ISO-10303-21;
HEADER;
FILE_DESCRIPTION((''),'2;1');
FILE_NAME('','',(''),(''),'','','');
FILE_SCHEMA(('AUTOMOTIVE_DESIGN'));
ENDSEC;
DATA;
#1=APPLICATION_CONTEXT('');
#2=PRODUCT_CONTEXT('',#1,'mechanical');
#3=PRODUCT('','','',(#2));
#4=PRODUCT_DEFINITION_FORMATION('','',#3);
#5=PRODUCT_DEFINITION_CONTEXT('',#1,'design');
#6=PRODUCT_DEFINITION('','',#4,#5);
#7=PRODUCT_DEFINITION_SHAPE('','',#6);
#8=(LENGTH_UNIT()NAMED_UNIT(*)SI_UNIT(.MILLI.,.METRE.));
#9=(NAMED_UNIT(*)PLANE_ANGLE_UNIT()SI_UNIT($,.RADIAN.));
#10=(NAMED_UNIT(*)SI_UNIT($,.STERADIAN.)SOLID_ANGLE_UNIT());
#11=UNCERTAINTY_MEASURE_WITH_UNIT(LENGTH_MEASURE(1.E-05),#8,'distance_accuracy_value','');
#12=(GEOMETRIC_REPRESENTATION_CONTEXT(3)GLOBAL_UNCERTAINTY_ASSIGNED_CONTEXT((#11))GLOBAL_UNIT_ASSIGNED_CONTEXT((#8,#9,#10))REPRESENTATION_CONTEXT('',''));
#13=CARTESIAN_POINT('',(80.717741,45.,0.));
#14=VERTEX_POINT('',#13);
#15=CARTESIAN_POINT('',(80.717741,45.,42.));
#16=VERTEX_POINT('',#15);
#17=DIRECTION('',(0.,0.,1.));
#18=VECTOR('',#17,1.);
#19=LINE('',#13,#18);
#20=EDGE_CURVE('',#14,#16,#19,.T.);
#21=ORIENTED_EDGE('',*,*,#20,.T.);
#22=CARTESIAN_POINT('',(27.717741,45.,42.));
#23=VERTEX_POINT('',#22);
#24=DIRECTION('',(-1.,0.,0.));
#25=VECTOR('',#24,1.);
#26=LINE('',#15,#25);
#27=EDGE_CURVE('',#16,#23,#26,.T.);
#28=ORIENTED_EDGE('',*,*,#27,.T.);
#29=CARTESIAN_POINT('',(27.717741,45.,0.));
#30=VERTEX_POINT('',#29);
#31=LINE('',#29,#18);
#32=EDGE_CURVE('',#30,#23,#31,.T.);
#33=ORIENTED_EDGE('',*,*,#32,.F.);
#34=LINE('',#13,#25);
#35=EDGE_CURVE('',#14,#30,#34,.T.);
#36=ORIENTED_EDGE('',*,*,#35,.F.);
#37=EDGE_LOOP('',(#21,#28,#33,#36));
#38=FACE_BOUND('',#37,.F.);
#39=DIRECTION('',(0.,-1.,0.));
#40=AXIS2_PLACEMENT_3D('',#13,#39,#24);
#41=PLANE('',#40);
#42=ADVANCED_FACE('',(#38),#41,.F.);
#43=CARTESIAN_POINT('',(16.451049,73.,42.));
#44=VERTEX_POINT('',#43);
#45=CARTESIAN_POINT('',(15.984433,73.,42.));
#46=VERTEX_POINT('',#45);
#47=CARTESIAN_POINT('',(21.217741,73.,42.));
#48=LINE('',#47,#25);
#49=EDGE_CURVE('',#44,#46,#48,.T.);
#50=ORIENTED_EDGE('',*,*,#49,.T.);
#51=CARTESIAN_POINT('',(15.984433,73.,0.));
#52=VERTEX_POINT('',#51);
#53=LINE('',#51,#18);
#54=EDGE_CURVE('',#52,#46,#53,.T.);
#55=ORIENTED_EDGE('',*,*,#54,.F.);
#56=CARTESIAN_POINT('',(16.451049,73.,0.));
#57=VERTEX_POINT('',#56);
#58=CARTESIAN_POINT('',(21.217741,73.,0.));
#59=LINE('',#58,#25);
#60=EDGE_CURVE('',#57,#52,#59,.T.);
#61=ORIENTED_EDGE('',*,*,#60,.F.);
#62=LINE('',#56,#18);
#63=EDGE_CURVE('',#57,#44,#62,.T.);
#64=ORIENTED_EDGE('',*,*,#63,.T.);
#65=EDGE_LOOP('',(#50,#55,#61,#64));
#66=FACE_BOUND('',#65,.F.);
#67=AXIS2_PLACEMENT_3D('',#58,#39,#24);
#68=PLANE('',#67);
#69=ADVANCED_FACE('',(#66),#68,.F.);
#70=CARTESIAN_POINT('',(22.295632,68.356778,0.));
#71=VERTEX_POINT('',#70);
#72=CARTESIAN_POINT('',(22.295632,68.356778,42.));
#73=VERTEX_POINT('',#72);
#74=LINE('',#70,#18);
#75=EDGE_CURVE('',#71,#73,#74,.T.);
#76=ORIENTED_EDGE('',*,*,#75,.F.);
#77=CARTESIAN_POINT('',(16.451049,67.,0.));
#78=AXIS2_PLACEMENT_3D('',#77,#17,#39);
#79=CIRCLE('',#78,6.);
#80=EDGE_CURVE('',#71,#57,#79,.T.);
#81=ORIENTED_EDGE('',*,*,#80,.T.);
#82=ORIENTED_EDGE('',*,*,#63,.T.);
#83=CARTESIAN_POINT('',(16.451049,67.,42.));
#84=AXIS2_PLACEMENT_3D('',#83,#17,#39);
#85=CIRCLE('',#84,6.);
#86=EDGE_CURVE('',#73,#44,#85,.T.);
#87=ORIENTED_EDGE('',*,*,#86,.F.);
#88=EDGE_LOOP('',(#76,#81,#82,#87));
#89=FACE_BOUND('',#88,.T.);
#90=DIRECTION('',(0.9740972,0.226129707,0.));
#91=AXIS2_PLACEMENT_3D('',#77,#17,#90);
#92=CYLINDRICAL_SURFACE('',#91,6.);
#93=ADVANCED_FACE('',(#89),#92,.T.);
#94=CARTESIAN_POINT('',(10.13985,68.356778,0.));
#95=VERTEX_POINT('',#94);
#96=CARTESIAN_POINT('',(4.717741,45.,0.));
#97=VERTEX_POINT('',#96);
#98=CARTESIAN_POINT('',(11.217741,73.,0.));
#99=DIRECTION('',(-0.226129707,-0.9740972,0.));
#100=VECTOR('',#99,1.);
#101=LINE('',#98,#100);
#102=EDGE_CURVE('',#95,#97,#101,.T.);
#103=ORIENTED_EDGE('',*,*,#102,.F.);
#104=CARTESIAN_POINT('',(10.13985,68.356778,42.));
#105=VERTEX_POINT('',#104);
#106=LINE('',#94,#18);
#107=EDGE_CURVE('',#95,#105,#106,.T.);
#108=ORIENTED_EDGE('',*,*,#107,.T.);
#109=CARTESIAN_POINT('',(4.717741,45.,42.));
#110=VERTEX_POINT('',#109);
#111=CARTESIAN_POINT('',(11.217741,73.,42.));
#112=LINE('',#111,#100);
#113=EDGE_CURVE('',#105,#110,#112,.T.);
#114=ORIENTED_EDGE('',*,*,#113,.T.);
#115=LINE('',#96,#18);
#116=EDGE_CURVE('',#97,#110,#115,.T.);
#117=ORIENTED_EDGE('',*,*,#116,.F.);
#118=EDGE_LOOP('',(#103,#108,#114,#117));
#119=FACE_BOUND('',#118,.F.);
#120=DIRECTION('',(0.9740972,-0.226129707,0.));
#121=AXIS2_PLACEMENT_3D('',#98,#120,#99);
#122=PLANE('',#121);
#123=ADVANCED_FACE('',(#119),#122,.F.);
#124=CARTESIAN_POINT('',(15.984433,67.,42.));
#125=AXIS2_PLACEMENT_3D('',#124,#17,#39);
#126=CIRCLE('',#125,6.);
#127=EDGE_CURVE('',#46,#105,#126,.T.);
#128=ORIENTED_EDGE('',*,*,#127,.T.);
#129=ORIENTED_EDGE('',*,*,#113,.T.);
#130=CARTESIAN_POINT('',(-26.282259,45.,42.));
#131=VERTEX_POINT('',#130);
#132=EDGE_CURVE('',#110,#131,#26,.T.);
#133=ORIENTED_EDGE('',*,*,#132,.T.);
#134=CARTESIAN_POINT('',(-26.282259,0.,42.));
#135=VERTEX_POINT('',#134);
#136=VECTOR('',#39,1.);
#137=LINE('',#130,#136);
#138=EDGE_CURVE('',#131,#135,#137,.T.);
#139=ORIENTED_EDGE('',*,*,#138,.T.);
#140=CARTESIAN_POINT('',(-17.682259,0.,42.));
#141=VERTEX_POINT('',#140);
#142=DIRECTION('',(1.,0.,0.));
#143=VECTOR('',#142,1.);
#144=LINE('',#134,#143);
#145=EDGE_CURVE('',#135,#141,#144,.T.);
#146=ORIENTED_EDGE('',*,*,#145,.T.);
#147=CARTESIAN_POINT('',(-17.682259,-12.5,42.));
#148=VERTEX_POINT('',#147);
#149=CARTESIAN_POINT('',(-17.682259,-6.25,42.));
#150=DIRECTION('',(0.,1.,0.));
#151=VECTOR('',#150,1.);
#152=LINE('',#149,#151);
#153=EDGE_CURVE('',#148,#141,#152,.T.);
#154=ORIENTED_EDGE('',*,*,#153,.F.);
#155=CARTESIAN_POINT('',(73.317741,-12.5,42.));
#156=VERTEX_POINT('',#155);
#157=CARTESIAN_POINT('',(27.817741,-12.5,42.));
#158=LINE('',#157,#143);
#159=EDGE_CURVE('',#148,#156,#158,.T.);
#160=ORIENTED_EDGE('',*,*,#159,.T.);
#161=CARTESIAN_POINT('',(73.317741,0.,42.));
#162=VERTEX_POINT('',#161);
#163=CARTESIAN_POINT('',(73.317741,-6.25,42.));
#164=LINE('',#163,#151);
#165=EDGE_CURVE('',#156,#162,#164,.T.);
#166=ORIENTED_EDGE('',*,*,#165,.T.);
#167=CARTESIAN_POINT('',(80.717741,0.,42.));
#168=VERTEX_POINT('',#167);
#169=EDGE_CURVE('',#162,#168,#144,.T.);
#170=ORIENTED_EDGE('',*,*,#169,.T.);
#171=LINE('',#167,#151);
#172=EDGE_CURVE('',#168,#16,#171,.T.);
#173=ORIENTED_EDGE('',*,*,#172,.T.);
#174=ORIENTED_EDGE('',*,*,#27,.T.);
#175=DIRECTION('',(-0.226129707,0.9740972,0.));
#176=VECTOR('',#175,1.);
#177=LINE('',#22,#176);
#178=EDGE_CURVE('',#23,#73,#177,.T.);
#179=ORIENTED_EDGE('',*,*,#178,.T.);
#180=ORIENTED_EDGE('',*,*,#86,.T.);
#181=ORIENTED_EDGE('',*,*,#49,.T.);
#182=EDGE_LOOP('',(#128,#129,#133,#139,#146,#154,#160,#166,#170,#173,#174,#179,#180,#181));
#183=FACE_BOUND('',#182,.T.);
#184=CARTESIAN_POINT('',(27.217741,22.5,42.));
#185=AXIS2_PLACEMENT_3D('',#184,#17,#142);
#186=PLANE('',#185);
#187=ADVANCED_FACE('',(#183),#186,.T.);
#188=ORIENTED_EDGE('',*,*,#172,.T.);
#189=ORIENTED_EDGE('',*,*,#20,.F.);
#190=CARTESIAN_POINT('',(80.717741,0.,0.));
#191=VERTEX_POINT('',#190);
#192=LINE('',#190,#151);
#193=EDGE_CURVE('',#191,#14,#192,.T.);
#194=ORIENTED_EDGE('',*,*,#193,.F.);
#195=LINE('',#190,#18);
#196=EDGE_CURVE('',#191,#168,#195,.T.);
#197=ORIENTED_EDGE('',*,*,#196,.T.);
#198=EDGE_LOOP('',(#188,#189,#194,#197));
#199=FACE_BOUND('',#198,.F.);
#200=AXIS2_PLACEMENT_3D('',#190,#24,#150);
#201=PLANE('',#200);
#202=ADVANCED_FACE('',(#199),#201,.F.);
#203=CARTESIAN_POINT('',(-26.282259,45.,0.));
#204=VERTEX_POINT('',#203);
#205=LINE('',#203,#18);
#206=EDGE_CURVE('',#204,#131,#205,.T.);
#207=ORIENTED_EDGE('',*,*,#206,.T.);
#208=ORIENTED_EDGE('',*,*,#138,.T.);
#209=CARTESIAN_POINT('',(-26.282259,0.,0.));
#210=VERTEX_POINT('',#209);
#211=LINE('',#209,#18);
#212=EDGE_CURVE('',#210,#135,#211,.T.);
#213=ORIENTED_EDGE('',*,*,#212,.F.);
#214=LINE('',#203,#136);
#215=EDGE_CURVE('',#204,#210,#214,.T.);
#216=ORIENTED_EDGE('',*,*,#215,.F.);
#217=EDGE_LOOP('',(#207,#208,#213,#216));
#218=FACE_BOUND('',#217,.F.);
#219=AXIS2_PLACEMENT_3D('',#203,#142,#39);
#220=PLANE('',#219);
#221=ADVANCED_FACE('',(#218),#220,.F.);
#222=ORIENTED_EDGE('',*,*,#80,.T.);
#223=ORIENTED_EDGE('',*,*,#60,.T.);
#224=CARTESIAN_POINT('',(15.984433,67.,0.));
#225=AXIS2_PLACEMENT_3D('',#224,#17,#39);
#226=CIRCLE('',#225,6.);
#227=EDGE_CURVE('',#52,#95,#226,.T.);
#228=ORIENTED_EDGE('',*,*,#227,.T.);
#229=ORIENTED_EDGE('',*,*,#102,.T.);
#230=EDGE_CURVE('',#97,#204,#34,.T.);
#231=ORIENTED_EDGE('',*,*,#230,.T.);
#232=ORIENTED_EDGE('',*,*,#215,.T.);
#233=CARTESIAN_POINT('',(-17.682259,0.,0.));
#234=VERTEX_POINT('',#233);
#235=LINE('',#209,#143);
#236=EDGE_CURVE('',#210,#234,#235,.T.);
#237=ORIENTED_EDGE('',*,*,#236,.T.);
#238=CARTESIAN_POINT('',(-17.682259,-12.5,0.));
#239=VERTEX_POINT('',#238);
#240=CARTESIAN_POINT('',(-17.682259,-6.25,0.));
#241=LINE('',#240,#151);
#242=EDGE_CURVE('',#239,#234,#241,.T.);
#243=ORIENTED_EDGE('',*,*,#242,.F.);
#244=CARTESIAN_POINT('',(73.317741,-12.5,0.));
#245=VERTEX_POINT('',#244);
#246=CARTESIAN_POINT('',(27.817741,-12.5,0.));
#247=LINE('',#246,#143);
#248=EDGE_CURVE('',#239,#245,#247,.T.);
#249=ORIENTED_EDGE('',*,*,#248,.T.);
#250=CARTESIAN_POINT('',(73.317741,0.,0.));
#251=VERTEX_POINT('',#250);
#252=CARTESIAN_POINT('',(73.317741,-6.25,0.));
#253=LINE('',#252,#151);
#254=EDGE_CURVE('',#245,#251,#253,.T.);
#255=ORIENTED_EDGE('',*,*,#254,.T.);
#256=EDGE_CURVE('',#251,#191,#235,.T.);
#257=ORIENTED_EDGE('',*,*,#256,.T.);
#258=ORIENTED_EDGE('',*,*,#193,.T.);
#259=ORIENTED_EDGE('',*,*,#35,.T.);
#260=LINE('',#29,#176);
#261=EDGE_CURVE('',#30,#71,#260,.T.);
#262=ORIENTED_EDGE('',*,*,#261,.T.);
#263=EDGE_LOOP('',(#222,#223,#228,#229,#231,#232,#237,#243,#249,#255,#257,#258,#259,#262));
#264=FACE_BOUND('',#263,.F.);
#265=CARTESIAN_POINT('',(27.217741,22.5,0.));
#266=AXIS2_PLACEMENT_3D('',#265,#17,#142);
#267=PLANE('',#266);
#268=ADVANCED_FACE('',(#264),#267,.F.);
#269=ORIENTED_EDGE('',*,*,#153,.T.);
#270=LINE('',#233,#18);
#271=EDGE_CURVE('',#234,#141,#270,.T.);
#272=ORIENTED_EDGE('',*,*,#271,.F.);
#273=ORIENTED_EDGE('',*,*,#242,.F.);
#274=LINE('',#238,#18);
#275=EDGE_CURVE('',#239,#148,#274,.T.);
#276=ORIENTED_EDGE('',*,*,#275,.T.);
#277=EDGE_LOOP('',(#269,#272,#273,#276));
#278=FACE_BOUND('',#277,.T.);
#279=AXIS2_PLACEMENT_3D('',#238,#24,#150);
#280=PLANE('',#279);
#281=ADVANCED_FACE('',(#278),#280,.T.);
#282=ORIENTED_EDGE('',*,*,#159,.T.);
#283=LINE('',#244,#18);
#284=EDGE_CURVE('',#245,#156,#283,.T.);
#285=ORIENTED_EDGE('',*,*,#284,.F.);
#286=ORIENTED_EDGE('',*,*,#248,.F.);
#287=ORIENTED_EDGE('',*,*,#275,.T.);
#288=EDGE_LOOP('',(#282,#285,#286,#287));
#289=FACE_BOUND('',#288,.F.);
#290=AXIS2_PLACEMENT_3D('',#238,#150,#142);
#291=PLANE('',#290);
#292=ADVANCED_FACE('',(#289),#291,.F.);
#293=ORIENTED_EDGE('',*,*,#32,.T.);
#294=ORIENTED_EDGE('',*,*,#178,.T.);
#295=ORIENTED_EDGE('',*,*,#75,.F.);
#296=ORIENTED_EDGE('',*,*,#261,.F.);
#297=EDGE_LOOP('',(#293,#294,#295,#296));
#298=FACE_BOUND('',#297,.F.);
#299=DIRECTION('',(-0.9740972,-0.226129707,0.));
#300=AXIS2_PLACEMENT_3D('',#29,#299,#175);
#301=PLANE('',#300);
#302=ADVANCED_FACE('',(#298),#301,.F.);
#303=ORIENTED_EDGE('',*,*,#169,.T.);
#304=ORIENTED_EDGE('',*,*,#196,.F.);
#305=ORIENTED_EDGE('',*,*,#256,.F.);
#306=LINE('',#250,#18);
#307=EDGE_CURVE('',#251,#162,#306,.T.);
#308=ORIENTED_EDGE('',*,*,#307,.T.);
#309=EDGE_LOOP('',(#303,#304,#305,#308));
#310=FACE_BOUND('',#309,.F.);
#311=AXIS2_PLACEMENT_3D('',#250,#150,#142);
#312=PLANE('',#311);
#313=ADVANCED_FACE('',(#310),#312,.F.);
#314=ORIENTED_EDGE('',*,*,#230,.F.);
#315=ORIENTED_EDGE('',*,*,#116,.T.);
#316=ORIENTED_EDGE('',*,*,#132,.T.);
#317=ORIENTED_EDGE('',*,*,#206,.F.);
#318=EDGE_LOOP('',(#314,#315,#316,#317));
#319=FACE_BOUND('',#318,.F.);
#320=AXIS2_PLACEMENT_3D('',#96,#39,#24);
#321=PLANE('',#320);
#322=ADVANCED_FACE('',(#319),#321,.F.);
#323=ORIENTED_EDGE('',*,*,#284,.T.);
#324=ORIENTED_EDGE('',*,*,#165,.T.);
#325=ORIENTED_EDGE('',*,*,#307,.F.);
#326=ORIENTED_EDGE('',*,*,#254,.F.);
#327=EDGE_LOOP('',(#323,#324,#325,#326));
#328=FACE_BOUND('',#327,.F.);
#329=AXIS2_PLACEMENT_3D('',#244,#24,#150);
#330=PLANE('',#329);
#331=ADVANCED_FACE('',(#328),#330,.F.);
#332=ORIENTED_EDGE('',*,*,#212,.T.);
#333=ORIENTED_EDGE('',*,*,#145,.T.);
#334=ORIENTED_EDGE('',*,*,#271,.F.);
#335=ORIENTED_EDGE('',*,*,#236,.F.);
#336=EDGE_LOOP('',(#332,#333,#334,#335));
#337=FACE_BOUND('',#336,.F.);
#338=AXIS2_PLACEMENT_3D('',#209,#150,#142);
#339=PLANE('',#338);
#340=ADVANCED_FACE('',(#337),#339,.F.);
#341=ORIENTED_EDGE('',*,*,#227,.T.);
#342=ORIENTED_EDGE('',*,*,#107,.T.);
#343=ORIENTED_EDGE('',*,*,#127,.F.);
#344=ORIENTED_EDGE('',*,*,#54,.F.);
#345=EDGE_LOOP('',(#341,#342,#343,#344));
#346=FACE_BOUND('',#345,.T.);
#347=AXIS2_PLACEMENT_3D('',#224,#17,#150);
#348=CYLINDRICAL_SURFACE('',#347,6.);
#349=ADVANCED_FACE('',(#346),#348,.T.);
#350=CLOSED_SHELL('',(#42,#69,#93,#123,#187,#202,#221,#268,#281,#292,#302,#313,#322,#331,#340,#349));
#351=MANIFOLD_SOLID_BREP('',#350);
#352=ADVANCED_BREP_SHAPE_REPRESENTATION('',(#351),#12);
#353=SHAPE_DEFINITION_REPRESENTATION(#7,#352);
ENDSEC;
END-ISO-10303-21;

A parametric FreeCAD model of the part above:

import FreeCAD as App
import Part
import Sketcher


def edges_at(feature, points):
    """Names of the edges that pass closest to the given points."""
    edges = feature.Shape.Edges
    near = lambda p: min(range(len(edges)), key=lambda i: edges[i].distToShape(Part.Vertex(*p))[0])
    return sorted({f"Edge{near(p) + 1}" for p in points})

doc = App.newDocument("Part")
body = doc.addObject("PartDesign::Body", "Body")

# Sketch on XY plane
sketch1 = doc.addObject("Sketcher::SketchObject", "Sketch")
body.addObject(sketch1)
sketch1.AttachmentSupport = (doc.XY_Plane, [""])
sketch1.MapMode = "FlatFace"
sketch1.addGeometry([
    Part.LineSegment(App.Vector(-26, 45, 0), App.Vector(-26, 0, 0)),  # 0
    Part.LineSegment(App.Vector(-26, 0, 0), App.Vector(-18, 0, 0)),  # 1
    Part.LineSegment(App.Vector(-18, 0, 0), App.Vector(-18, -12, 0)),  # 2
    Part.LineSegment(App.Vector(-18, -12, 0), App.Vector(73, -12, 0)),  # 3
    Part.LineSegment(App.Vector(73, -12, 0), App.Vector(73, 0, 0)),  # 4
    Part.LineSegment(App.Vector(73, 0, 0), App.Vector(81, 0, 0)),  # 5
    Part.LineSegment(App.Vector(81, 0, 0), App.Vector(81, 45, 0)),  # 6
    Part.LineSegment(App.Vector(81, 45, 0), App.Vector(28, 45, 0)),  # 7
    Part.LineSegment(App.Vector(28, 45, 0), App.Vector(21, 73, 0)),  # 8
    Part.LineSegment(App.Vector(21, 73, 0), App.Vector(11, 73, 0)),  # 9
    Part.LineSegment(App.Vector(11, 73, 0), App.Vector(5, 45, 0)),  # 10
    Part.LineSegment(App.Vector(5, 45, 0), App.Vector(-26, 45, 0)),  # 11
], False)
sketch1.addConstraint([
    Sketcher.Constraint("Coincident", 0, 2, 1, 1),
    Sketcher.Constraint("Coincident", 1, 2, 2, 1),
    Sketcher.Constraint("Coincident", 2, 2, 3, 1),
    Sketcher.Constraint("Coincident", 3, 2, 4, 1),
    Sketcher.Constraint("Coincident", 4, 2, 5, 1),
    Sketcher.Constraint("Coincident", 5, 2, 6, 1),
    Sketcher.Constraint("Coincident", 6, 2, 7, 1),
    Sketcher.Constraint("Coincident", 7, 2, 8, 1),
    Sketcher.Constraint("Coincident", 8, 2, 9, 1),
    Sketcher.Constraint("Coincident", 9, 2, 10, 1),
    Sketcher.Constraint("Coincident", 10, 2, 11, 1),
    Sketcher.Constraint("Coincident", 11, 2, 0, 1),
    Sketcher.Constraint("Vertical", 0),
    Sketcher.Constraint("Horizontal", 1),
    Sketcher.Constraint("Vertical", 2),
    Sketcher.Constraint("Horizontal", 3),
    Sketcher.Constraint("Vertical", 4),
    Sketcher.Constraint("Horizontal", 5),
    Sketcher.Constraint("Vertical", 6),
    Sketcher.Constraint("Horizontal", 7),
    Sketcher.Constraint("Horizontal", 9),
    Sketcher.Constraint("Horizontal", 11),
    Sketcher.Constraint("PointOnObject", 0, 2, -1),
    Sketcher.Constraint("PointOnObject", 4, 2, -1),
    Sketcher.Constraint("Horizontal", 7, 2, 10, 2),
    Sketcher.Constraint("Equal", 8, 10),
    Sketcher.Constraint("DistanceX", 3, 1, 3, 2, 91.0),
    Sketcher.Constraint("DistanceX", 7, 2, 7, 1, 53.0),
    Sketcher.Constraint("DistanceX", 9, 2, 9, 1, 10.0),
    Sketcher.Constraint("DistanceX", 11, 2, 11, 1, 31.0),
    Sketcher.Constraint("DistanceY", 0, 2, 0, 1, 45.0),
    Sketcher.Constraint("DistanceX", 1, 1, 1, 2, 8.6),
    Sketcher.Constraint("DistanceX", 5, 1, 5, 2, 7.4),
    Sketcher.Constraint("DistanceY", 2, 2, 2, 1, 12.5),
    Sketcher.Constraint("DistanceY", -1, 1, 8, 2, 73.0),
    Sketcher.Constraint("DistanceX", 0, 2, -1, 1, 26.282259),
])
pad1 = doc.addObject("PartDesign::Pad", "Pad")
body.addObject(pad1)
pad1.Profile = sketch1
pad1.Length = 42
doc.recompute()

fillet = doc.addObject("PartDesign::Fillet", "Fillet")
body.addObject(fillet)
fillet.Base = (pad1, edges_at(pad1, [(11.218, 73, 21), (21.218, 73, 21)]))
fillet.Radius = 6

doc.recompute()
